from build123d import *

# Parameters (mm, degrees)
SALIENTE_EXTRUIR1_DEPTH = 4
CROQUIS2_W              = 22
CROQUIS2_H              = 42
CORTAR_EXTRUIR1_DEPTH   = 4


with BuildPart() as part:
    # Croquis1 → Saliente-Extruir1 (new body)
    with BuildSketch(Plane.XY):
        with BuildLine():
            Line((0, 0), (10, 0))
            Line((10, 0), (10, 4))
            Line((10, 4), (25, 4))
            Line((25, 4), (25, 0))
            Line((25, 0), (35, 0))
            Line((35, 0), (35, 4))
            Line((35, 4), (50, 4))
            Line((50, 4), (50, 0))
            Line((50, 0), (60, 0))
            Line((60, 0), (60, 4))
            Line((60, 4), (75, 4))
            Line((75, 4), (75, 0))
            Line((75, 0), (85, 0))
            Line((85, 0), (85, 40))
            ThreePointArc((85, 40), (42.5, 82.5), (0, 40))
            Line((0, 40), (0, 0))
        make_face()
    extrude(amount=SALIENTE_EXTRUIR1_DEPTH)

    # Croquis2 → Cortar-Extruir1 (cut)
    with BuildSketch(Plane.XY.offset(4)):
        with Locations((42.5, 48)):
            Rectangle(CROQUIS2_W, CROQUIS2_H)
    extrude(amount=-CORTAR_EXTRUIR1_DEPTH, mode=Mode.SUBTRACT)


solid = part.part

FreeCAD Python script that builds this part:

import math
import FreeCAD as App
import Part
import Sketcher

V = App.Vector

doc = App.newDocument("Part")
body = doc.addObject("PartDesign::Body", "Body")

# Sketch on XY plane
sketch1 = body.newObject("Sketcher::SketchObject", "Sketch")
sketch1.AttachmentSupport = (doc.getObject("XY_Plane"), [""])
sketch1.MapMode = "FlatFace"
sketch1.addGeometry([
    Part.LineSegment(V(0, 0, 0), V(10, 0, 0)),  # 0
    Part.LineSegment(V(10, 0, 0), V(10, 4, 0)),  # 1
    Part.LineSegment(V(10, 4, 0), V(25, 4, 0)),  # 2
    Part.LineSegment(V(25, 4, 0), V(25, 0, 0)),  # 3
    Part.LineSegment(V(25, 0, 0), V(35, 0, 0)),  # 4
    Part.LineSegment(V(35, 0, 0), V(35, 4, 0)),  # 5
    Part.LineSegment(V(35, 4, 0), V(50, 4, 0)),  # 6
    Part.LineSegment(V(50, 4, 0), V(50, 0, 0)),  # 7
    Part.LineSegment(V(50, 0, 0), V(60, 0, 0)),  # 8
    Part.LineSegment(V(60, 0, 0), V(60, 4, 0)),  # 9
    Part.LineSegment(V(60, 4, 0), V(75, 4, 0)),  # 10
    Part.LineSegment(V(75, 4, 0), V(75, 0, 0)),  # 11
    Part.LineSegment(V(75, 0, 0), V(85, 0, 0)),  # 12
    Part.LineSegment(V(85, 0, 0), V(85, 40, 0)),  # 13
    Part.ArcOfCircle(Part.Circle(V(42.5, 40, 0), V(0, 0, 1), 42.5), math.radians(0), math.radians(180)),  # 14
    Part.LineSegment(V(0, 40, 0), V(0, 0, 0)),  # 15
], False)
sketch1.addConstraint([
    Sketcher.Constraint("Coincident", 0, 2, 1, 1),
    Sketcher.Constraint("Coincident", 1, 2, 2, 1),
    Sketcher.Constraint("Coincident", 2, 2, 3, 1),
    Sketcher.Constraint("Coincident", 3, 2, 4, 1),
    Sketcher.Constraint("Coincident", 4, 2, 5, 1),
    Sketcher.Constraint("Coincident", 5, 2, 6, 1),
    Sketcher.Constraint("Coincident", 6, 2, 7, 1),
    Sketcher.Constraint("Coincident", 7, 2, 8, 1),
    Sketcher.Constraint("Coincident", 8, 2, 9, 1),
    Sketcher.Constraint("Coincident", 9, 2, 10, 1),
    Sketcher.Constraint("Coincident", 10, 2, 11, 1),
    Sketcher.Constraint("Coincident", 11, 2, 12, 1),
    Sketcher.Constraint("Coincident", 12, 2, 13, 1),
    Sketcher.Constraint("Tangent", 13, 2, 14, 1),
    Sketcher.Constraint("Tangent", 14, 2, 15, 1),
    Sketcher.Constraint("Coincident", 15, 2, 0, 1),
    Sketcher.Constraint("Horizontal", 0),
    Sketcher.Constraint("Vertical", 1),
    Sketcher.Constraint("Horizontal", 2),
    Sketcher.Constraint("Vertical", 3),
    Sketcher.Constraint("Horizontal", 4),
    Sketcher.Constraint("Vertical", 5),
    Sketcher.Constraint("Horizontal", 6),
    Sketcher.Constraint("Vertical", 7),
    Sketcher.Constraint("Horizontal", 8),
    Sketcher.Constraint("Vertical", 9),
    Sketcher.Constraint("Horizontal", 10),
    Sketcher.Constraint("Vertical", 11),
    Sketcher.Constraint("Horizontal", 12),
    Sketcher.Constraint("Vertical", 13),
    Sketcher.Constraint("Vertical", 15),
    Sketcher.Constraint("Coincident", 15, 2, -1, 1),
    Sketcher.Constraint("PointOnObject", 3, 2, -1),
    Sketcher.Constraint("PointOnObject", 7, 2, -1),
    Sketcher.Constraint("PointOnObject", 11, 2, -1),
    Sketcher.Constraint("Horizontal", 2, 2, 5, 2),
    Sketcher.Constraint("Horizontal", 6, 2, 9, 2),
    Sketcher.Constraint("Equal", 0, 4),
    Sketcher.Constraint("Equal", 2, 6),
    Sketcher.Constraint("Equal", 4, 8),
    Sketcher.Constraint("Equal", 6, 10),
    Sketcher.Constraint("Equal", 8, 12),
    Sketcher.Constraint("Radius", 14, 42.5),
    Sketcher.Constraint("DistanceX", 0, 1, 0, 2, 10.0),
    Sketcher.Constraint("DistanceY", 1, 1, 1, 2, 4.0),
    Sketcher.Constraint("DistanceY", 13, 1, 13, 2, 40.0),
])
pad1 = body.newObject("PartDesign::Pad", "Pad")
pad1.Profile = sketch1
pad1.Length = 4

# Sketch on XY plane
sketch2 = body.newObject("Sketcher::SketchObject", "Sketch001")
sketch2.AttachmentSupport = (doc.getObject("XY_Plane"), [""])
sketch2.MapMode = "FlatFace"
sketch2.AttachmentOffset = App.Placement(V(0, 0, 4), App.Rotation())
sketch2.addGeometry([
    Part.LineSegment(V(32, 69, 0), V(32, 27, 0)),
    Part.LineSegment(V(32, 27, 0), V(54, 27, 0)),
    Part.LineSegment(V(54, 27, 0), V(54, 69, 0)),
    Part.LineSegment(V(54, 69, 0), V(32, 69, 0)),
], False)
sketch2.addConstraint([
    Sketcher.Constraint("Coincident", 0, 2, 1, 1),
    Sketcher.Constraint("Coincident", 1, 2, 2, 1),
    Sketcher.Constraint("Coincident", 2, 2, 3, 1),
    Sketcher.Constraint("Coincident", 3, 2, 0, 1),
    Sketcher.Constraint("Vertical", 0),
    Sketcher.Constraint("Horizontal", 1),
    Sketcher.Constraint("Vertical", 2),
    Sketcher.Constraint("Horizontal", 3),
    Sketcher.Constraint("DistanceX", 1, 1, 1, 2, 22.0),
    Sketcher.Constraint("DistanceY", 0, 2, 0, 1, 42.0),
    Sketcher.Constraint("DistanceY", -1, 1, 0, 2, 27.0),
    Sketcher.Constraint("DistanceX", -1, 1, 0, 2, 31.5),
])
pocket1 = body.newObject("PartDesign::Pocket", "Pocket")
pocket1.Profile = sketch2
pocket1.Length = 4

doc.recompute()
